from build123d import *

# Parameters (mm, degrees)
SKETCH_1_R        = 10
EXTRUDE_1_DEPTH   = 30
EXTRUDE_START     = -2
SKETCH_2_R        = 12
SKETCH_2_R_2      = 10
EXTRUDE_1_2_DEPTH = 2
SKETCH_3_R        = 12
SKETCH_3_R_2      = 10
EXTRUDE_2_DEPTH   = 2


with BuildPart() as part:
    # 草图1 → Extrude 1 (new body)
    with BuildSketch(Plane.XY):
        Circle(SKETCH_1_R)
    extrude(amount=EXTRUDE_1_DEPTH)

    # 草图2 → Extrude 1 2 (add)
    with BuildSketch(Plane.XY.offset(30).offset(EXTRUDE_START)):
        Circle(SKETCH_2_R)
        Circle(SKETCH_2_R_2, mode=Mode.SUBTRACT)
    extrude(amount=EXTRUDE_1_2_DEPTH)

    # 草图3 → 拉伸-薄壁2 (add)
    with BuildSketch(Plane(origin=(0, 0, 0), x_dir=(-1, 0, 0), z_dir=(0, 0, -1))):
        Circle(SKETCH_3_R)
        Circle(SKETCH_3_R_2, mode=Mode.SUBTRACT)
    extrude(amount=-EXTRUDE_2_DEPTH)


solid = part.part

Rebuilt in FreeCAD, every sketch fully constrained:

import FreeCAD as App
import Part
import Sketcher
Q = App.Units.Quantity

doc = App.newDocument("Part")
body = doc.addObject("PartDesign::Body", "Body")

sketch1 = doc.addObject("Sketcher::SketchObject", "Sketch")
body.addObject(sketch1)
sketch1.AttachmentSupport = (doc.XY_Plane, [""])
sketch1.MapMode = "FlatFace"
sketch1.addGeometry(Part.Circle(App.Vector(0, 0, 0), App.Vector(0, 0, 1), 10), False)
sketch1.addConstraint(Sketcher.Constraint("Coincident", 0, 3, -1, 1))
sketch1.addConstraint(Sketcher.Constraint("Diameter", 0, Q("20 mm")))
pad1 = doc.addObject("PartDesign::Pad", "Pad")
body.addObject(pad1)
pad1.Profile = sketch1
pad1.Length = 30

sketch2 = doc.addObject("Sketcher::SketchObject", "Sketch001")
body.addObject(sketch2)
sketch2.AttachmentSupport = (doc.XY_Plane, [""])
sketch2.MapMode = "FlatFace"
sketch2.AttachmentOffset = App.Placement(App.Vector(0, 0, 28), App.Rotation())
sketch2.addGeometry(Part.Circle(App.Vector(0, 0, 0), App.Vector(0, 0, 1), 12), False)
sketch2.addGeometry(Part.Circle(App.Vector(0, 0, 0), App.Vector(0, 0, 1), 10), False)
sketch2.addConstraint(Sketcher.Constraint("Coincident", 0, 3, -1, 1))
sketch2.addConstraint(Sketcher.Constraint("Coincident", 1, 3, -1, 1))
sketch2.addConstraint(Sketcher.Constraint("Diameter", 0, Q("24 mm")))
sketch2.addConstraint(Sketcher.Constraint("Diameter", 1, Q("20 mm")))
pad2 = doc.addObject("PartDesign::Pad", "Pad001")
body.addObject(pad2)
pad2.Profile = sketch2
pad2.Length = 2

sketch3 = doc.addObject("Sketcher::SketchObject", "Sketch002")
body.addObject(sketch3)
sketch3.AttachmentSupport = (doc.XY_Plane, [""])
sketch3.MapMode = "FlatFace"
sketch3.addGeometry(Part.Circle(App.Vector(0, 0, 0), App.Vector(0, 0, 1), 12), False)
sketch3.addGeometry(Part.Circle(App.Vector(0, 0, 0), App.Vector(0, 0, 1), 10), False)
sketch3.addConstraint(Sketcher.Constraint("Coincident", 0, 3, -1, 1))
sketch3.addConstraint(Sketcher.Constraint("Coincident", 1, 3, -1, 1))
sketch3.addConstraint(Sketcher.Constraint("Diameter", 0, Q("24 mm")))
sketch3.addConstraint(Sketcher.Constraint("Diameter", 1, Q("20 mm")))
pad3 = doc.addObject("PartDesign::Pad", "Pad002")
body.addObject(pad3)
pad3.Profile = sketch3
pad3.Length = 2

doc.recompute()
